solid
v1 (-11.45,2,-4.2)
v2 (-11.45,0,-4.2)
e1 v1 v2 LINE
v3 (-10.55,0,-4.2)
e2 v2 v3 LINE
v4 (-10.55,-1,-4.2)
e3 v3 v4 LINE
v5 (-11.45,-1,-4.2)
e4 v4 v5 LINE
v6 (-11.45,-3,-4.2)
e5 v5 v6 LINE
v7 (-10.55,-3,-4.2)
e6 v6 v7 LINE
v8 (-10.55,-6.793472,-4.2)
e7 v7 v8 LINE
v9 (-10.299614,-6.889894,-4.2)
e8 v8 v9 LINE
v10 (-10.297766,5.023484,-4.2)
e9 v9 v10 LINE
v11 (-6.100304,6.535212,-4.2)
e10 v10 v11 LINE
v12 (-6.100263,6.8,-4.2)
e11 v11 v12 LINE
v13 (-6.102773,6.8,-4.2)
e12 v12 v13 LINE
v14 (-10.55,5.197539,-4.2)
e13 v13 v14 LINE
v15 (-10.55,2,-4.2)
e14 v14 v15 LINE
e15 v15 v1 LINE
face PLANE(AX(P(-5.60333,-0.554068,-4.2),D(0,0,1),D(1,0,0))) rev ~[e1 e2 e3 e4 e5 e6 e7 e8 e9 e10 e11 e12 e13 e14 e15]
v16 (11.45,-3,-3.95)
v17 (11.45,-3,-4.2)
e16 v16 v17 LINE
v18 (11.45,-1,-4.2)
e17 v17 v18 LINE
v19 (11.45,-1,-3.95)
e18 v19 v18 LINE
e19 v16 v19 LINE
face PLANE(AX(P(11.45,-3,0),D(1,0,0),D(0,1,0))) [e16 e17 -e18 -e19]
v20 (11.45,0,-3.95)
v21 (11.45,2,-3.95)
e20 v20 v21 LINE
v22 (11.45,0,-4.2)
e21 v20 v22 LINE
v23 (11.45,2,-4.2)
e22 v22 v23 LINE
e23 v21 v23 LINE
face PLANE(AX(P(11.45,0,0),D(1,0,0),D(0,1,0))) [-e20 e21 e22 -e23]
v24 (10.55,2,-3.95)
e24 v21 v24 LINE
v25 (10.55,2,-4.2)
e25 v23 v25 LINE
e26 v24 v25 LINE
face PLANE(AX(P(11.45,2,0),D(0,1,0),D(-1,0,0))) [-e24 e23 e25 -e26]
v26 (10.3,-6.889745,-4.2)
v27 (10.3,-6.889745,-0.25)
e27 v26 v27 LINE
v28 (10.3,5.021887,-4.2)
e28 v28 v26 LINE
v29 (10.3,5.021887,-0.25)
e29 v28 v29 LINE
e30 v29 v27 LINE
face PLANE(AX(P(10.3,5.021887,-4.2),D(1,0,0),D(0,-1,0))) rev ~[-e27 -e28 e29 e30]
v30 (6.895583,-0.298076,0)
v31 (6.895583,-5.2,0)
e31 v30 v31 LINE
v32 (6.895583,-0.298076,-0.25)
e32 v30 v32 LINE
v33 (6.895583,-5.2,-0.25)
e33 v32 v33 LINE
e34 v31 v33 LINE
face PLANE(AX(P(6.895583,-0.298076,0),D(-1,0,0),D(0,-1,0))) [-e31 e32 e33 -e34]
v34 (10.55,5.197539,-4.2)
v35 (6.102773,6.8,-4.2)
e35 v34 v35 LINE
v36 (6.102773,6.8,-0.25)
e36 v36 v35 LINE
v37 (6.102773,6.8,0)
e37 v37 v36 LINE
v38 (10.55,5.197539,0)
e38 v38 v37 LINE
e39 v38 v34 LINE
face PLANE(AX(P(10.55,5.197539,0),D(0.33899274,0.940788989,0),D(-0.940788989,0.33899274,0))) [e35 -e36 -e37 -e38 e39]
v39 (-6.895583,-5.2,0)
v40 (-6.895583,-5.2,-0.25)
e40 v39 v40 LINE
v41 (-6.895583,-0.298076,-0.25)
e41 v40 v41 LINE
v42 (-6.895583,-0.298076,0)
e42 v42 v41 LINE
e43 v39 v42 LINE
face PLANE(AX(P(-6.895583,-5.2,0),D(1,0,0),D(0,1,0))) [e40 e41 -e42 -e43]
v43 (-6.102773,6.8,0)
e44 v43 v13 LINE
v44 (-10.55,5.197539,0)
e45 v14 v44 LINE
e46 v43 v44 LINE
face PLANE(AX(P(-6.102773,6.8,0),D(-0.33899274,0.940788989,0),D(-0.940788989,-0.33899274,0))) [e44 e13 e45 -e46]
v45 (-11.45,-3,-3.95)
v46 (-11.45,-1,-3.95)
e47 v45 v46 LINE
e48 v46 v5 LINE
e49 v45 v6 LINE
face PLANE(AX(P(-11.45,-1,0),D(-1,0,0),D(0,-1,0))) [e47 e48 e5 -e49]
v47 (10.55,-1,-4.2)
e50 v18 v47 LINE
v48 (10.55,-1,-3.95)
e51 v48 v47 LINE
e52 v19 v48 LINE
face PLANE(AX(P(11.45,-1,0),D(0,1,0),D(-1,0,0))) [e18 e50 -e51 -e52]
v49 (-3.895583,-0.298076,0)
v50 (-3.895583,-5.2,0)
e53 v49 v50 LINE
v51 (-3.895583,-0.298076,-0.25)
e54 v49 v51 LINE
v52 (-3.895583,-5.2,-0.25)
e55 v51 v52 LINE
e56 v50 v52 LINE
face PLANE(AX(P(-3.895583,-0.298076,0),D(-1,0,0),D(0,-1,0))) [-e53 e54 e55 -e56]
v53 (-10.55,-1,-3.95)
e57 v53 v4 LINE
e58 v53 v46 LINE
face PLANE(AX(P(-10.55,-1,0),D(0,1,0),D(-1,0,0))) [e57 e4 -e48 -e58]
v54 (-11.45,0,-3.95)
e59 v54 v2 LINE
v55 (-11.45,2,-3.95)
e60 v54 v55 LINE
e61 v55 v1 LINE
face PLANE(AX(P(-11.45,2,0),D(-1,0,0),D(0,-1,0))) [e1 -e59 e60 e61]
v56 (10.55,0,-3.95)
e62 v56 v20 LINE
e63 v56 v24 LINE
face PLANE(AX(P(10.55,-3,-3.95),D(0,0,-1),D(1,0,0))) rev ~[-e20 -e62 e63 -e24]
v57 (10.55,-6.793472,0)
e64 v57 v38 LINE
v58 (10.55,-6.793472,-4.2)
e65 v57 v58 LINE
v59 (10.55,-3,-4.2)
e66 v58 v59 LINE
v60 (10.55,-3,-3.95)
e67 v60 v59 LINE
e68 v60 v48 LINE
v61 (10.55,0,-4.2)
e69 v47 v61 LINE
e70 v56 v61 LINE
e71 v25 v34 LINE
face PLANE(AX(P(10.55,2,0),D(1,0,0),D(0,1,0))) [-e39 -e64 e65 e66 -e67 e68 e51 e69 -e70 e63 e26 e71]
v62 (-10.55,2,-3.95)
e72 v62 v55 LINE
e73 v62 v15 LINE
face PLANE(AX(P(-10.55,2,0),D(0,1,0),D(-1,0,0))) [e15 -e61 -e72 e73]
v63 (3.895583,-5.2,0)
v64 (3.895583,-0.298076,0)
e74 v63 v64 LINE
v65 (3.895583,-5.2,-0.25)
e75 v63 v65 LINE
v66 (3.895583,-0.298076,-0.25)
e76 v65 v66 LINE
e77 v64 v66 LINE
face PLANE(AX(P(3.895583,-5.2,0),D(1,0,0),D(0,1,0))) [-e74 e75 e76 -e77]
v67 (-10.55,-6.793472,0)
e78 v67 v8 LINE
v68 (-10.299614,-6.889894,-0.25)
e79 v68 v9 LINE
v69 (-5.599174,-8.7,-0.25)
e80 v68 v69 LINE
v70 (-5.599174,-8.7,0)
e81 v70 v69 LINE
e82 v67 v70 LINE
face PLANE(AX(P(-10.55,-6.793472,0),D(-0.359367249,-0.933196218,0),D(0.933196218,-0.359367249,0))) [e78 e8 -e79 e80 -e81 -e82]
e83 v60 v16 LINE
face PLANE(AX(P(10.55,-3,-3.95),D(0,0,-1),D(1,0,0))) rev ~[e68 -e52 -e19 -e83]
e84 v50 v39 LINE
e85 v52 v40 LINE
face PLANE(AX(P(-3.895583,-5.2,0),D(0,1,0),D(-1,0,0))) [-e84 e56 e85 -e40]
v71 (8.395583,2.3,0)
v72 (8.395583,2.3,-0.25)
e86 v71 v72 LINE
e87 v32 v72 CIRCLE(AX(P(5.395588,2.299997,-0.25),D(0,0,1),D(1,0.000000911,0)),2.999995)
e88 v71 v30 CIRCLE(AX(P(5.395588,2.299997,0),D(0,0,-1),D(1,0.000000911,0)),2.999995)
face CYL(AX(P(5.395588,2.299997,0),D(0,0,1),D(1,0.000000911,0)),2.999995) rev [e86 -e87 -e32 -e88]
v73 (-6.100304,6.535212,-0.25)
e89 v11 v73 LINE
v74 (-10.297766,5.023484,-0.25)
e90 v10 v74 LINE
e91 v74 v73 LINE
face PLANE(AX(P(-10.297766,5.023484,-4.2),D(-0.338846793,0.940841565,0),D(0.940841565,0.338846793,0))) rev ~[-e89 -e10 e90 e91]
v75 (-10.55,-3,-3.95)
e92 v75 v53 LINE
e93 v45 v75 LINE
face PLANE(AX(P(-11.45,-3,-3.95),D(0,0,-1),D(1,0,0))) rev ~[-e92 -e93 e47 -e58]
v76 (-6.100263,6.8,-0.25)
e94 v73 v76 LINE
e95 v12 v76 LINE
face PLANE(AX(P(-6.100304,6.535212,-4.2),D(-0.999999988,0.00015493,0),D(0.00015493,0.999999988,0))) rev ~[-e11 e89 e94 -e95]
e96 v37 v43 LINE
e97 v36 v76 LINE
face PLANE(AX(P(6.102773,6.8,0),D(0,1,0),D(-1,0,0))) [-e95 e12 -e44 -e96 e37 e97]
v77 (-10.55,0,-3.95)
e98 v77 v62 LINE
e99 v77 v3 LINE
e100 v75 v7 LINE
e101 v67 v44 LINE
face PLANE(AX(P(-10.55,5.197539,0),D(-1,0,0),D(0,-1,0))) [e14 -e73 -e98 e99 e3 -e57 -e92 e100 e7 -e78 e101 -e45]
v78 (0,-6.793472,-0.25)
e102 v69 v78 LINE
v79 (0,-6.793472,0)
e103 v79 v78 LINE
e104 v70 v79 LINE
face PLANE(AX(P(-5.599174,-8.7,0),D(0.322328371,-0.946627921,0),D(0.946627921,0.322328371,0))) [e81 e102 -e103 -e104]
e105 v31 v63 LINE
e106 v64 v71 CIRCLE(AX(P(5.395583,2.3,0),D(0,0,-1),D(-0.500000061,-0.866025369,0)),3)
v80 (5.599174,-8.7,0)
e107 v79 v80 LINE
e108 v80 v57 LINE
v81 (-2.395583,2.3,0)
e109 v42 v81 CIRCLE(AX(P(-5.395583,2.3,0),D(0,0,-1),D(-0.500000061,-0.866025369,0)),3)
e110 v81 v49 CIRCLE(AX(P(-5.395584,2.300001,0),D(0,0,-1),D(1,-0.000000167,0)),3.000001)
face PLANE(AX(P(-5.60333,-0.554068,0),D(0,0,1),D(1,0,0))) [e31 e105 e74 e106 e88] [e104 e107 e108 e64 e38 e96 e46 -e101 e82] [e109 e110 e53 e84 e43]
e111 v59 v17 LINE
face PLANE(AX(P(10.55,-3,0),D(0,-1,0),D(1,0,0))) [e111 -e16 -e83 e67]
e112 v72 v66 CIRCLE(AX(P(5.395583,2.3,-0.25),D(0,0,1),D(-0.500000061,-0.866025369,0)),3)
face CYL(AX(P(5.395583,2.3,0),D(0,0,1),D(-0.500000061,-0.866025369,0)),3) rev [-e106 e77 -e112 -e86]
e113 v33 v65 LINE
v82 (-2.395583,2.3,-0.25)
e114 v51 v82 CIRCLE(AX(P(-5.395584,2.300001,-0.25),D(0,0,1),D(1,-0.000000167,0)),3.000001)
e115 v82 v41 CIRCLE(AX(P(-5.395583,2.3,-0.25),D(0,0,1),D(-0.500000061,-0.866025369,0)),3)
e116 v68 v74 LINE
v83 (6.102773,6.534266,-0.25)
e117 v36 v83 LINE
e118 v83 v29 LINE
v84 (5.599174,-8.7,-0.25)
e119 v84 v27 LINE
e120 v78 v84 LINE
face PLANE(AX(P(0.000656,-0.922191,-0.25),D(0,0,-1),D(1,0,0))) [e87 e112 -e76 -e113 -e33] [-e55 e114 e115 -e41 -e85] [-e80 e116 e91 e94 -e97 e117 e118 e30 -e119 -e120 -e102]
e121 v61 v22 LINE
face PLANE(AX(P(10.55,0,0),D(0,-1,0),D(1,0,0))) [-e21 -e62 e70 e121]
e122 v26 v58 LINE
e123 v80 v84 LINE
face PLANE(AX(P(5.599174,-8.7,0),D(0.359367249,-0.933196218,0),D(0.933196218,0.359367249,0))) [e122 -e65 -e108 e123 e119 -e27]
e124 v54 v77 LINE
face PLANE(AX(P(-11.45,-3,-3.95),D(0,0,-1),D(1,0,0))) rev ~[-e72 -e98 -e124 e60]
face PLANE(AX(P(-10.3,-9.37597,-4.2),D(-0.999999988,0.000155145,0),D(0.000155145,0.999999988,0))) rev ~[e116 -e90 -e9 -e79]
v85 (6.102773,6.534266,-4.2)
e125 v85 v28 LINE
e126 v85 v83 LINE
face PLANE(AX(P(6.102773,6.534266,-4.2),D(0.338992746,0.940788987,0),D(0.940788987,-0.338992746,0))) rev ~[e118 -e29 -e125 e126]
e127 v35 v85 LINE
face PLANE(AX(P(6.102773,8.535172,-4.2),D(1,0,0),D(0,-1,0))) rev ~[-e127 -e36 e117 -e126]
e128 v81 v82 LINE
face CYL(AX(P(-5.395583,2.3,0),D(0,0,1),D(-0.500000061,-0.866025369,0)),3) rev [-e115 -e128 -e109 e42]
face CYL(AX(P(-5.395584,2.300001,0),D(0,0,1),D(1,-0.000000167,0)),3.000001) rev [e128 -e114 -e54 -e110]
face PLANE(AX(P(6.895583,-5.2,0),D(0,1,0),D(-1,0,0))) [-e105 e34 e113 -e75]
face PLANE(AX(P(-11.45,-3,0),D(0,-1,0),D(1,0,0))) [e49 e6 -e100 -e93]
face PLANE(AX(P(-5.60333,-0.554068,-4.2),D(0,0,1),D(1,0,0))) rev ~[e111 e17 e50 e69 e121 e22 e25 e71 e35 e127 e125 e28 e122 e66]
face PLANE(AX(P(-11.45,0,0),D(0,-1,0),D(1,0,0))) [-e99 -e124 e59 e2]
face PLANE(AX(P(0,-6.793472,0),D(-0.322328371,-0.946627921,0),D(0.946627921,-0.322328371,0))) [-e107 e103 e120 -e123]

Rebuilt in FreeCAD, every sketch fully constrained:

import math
import FreeCAD as App
import Part
import Sketcher
from FreeCAD import Vector


def add_polygon(sketch, points):
    """Adds a closed chain of lines whose ends are joined by coincident constraints."""
    first, n = sketch.GeometryCount, len(points)
    for a, b in zip(points, points[1:] + points[:1]):
        sketch.addGeometry(Part.LineSegment(App.Vector(*a, 0), App.Vector(*b, 0)), False)
    for i in range(n):
        sketch.addConstraint(Sketcher.Constraint("Coincident", first + i, 2, first + (i + 1) % n, 1))

doc = App.newDocument("Part")
body = doc.addObject("PartDesign::Body", "Body")

# Sketch on XY plane
sketch1 = body.newObject("Sketcher::SketchObject", "Sketch")
sketch1.AttachmentSupport = (doc.getObject("XY_Plane"), [""])
sketch1.MapMode = "FlatFace"
add_polygon(sketch1, [(-6.1, 6.8), (-10.6, 5.2), (-10.6, 2), (-11.4, 2), (-11.4, 0), (-10.6, 0), (-10.6, -1), (-11.4, -1), (-11.4, -3), (-10.6, -3), (-10.6, -6.8), (-5.6, -8.7), (0, -6.8), (5.6, -8.7), (10.6, -6.8), (10.6, -3), (11.4, -3), (11.4, -1), (10.6, -1), (10.6, 0), (11.4, 0), (11.4, 2), (10.6, 2), (10.6, 5.2), (6.1, 6.8)])  # lines 0-24
sketch1.addGeometry(Part.LineSegment(Vector(-6.9, -5.2, 0), Vector(-6.9, -0.3, 0)), False)  # 25
sketch1.addGeometry(Part.ArcOfCircle(Part.Circle(Vector(-5.4, 2.3, 0), Vector(0, 0, 1), 3), math.radians(0), math.radians(240)), False)  # 26
sketch1.addGeometry(Part.ArcOfCircle(Part.Circle(Vector(-5.4, 2.3, 0), Vector(0, 0, 1), 3), math.radians(-60), math.radians(0)), False)  # 27
sketch1.addGeometry(Part.LineSegment(Vector(-3.9, -0.3, 0), Vector(-3.9, -5.2, 0)), False)  # 28
sketch1.addGeometry(Part.LineSegment(Vector(-3.9, -5.2, 0), Vector(-6.9, -5.2, 0)), False)  # 29
sketch1.addGeometry(Part.LineSegment(Vector(3.9, -5.2, 0), Vector(3.9, -0.3, 0)), False)  # 30
sketch1.addGeometry(Part.ArcOfCircle(Part.Circle(Vector(5.4, 2.3, 0), Vector(0, 0, 1), 3), math.radians(0), math.radians(240)), False)  # 31
sketch1.addGeometry(Part.ArcOfCircle(Part.Circle(Vector(5.4, 2.3, 0), Vector(0, 0, 1), 3), math.radians(-60), math.radians(0)), False)  # 32
sketch1.addGeometry(Part.LineSegment(Vector(6.9, -0.3, 0), Vector(6.9, -5.2, 0)), False)  # 33
sketch1.addGeometry(Part.LineSegment(Vector(6.9, -5.2, 0), Vector(3.9, -5.2, 0)), False)  # 34
sketch1.addConstraint([
    Sketcher.Constraint("Coincident", 25, 2, 26, 2),
    Sketcher.Constraint("Tangent", 26, 1, 27, 2),
    Sketcher.Constraint("Coincident", 27, 1, 28, 1),
    Sketcher.Constraint("Coincident", 28, 2, 29, 1),
    Sketcher.Constraint("Coincident", 29, 2, 25, 1),
    Sketcher.Constraint("Coincident", 30, 2, 31, 2),
    Sketcher.Constraint("Tangent", 31, 1, 32, 2),
    Sketcher.Constraint("Coincident", 32, 1, 33, 1),
    Sketcher.Constraint("Coincident", 33, 2, 34, 1),
    Sketcher.Constraint("Coincident", 34, 2, 30, 1),
    Sketcher.Constraint("Vertical", 1),
    Sketcher.Constraint("Horizontal", 2),
    Sketcher.Constraint("Vertical", 3),
    Sketcher.Constraint("Horizontal", 4),
    Sketcher.Constraint("Vertical", 5),
    Sketcher.Constraint("Horizontal", 6),
    Sketcher.Constraint("Vertical", 7),
    Sketcher.Constraint("Horizontal", 8),
    Sketcher.Constraint("Vertical", 9),
    Sketcher.Constraint("Vertical", 14),
    Sketcher.Constraint("Horizontal", 15),
    Sketcher.Constraint("Vertical", 16),
    Sketcher.Constraint("Horizontal", 17),
    Sketcher.Constraint("Vertical", 18),
    Sketcher.Constraint("Horizontal", 19),
    Sketcher.Constraint("Vertical", 20),
    Sketcher.Constraint("Horizontal", 21),
    Sketcher.Constraint("Vertical", 22),
    Sketcher.Constraint("Horizontal", 24),
    Sketcher.Constraint("Vertical", 25),
    Sketcher.Constraint("Vertical", 28),
    Sketcher.Constraint("Horizontal", 29),
    Sketcher.Constraint("Vertical", 30),
    Sketcher.Constraint("Vertical", 33),
    Sketcher.Constraint("Horizontal", 34),
    Sketcher.Constraint("Equal", 26, 27),
    Sketcher.Constraint("Equal", 27, 31),
    Sketcher.Constraint("Symmetric", 4, 2, 18, 2, -1, 1),
    Sketcher.Constraint("Symmetric", 26, 3, 31, 3, -2),
    Sketcher.Constraint("Symmetric", 10, 2, 12, 2, -2),
    Sketcher.Constraint("Symmetric", 9, 2, 13, 2, -2),
    Sketcher.Constraint("Symmetric", 7, 2, 15, 2, -2),
    Sketcher.Constraint("Symmetric", 3, 2, 19, 2, -2),
    Sketcher.Constraint("Symmetric", 1, 2, 21, 2, -2),
    Sketcher.Constraint("Symmetric", 25, 2, 32, 1, -2),
    Sketcher.Constraint("Symmetric", 28, 2, 34, 2, -2),
    Sketcher.Constraint("PointOnObject", 11, 2, -2),
    Sketcher.Constraint("Horizontal", 9, 2, 11, 2),
    Sketcher.Constraint("Horizontal", 6, 2, 16, 2),
    Sketcher.Constraint("Horizontal", 0, 2, 22, 2),
    Sketcher.Constraint("Horizontal", 31, 3, 26, 1),
    Sketcher.Constraint("Horizontal", 25, 2, 27, 1),
    Sketcher.Constraint("Horizontal", 26, 1, 31, 1),
    Sketcher.Constraint("Vertical", 1, 2, 4, 2),
    Sketcher.Constraint("Vertical", 3, 2, 6, 2),
    Sketcher.Constraint("Vertical", 5, 2, 8, 2),
    Sketcher.Constraint("Equal", 3, 7),
    Sketcher.Constraint("Equal", 0, 23),
    Sketcher.Constraint("Radius", 26, 3.0),
    Sketcher.Constraint("DistanceX", 29, 2, 29, 1, 3.0),
    Sketcher.Constraint("DistanceY", 3, 2, 3, 1, 2.0),
    Sketcher.Constraint("DistanceY", 5, 2, 5, 1, 1.0),
    Sketcher.Constraint("DistanceX", 2, 2, 2, 1, 0.9),
    Sketcher.Constraint("DistanceY", 12, 2, 31, 3, 11.0),
    Sketcher.Constraint("DistanceY", -1, 1, 26, 3, 2.3),
    Sketcher.Constraint("DistanceY", -1, 1, 23, 2, 6.8),
    Sketcher.Constraint("DistanceY", 28, 2, -1, 1, 5.2),
    Sketcher.Constraint("DistanceX", 0, 2, -1, 1, 10.55),
    Sketcher.Constraint("DistanceY", 1, 2, 1, 1, 3.197539),
    Sketcher.Constraint("DistanceX", 24, 2, 24, 1, 12.205546),
    Sketcher.Constraint("DistanceY", 9, 2, 9, 1, 3.793472),
    Sketcher.Constraint("DistanceX", -1, 1, 32, 3, 5.395588),
    Sketcher.Constraint("DistanceX", 31, 3, 12, 2, 0.203591),
])
pad1 = body.newObject("PartDesign::Pad", "Pad")
pad1.Profile = sketch1
pad1.Length = 4.2
pad1.Reversed = True

# Sketch on XY plane
sketch2 = body.newObject("Sketcher::SketchObject", "Sketch001")
sketch2.AttachmentSupport = (doc.getObject("XY_Plane"), [""])
sketch2.MapMode = "FlatFace"
sketch2.AttachmentOffset = App.Placement(Vector(0, 0, -4.2), App.Rotation())
add_polygon(sketch2, [(10.3, 5.021887), (10.3, -9.377568), (0, -9.377568), (-10.3, -9.37597), (-10.297766, 5.023484), (-6.100304, 6.535212), (-6.099994, 8.536118), (0.001405, 8.73276), (6.102773, 8.535172), (6.102773, 6.534266)])  # lines 0-9
sketch2.addConstraint([
    Sketcher.Constraint("Vertical", 0),
    Sketcher.Constraint("Horizontal", 1),
    Sketcher.Constraint("Vertical", 8),
    Sketcher.Constraint("PointOnObject", 1, 2, -2),
    Sketcher.Constraint("DistanceX", 1, 2, 1, 1, 10.3),
    Sketcher.Constraint("Distance", 2, 10.3),
    Sketcher.Constraint("DistanceX", 5, 2, 6, 2, 6.101399),
    Sketcher.Constraint("Distance", 4, 4.461391),
    Sketcher.Constraint("Distance", 9, 4.46139),
    Sketcher.Constraint("DistanceY", 0, 2, 0, 1, 14.399455),
    Sketcher.Constraint("DistanceY", 8, 2, 8, 1, 2.000906),
    Sketcher.Constraint("DistanceY", 2, 2, -1, 1, 9.37597),
    Sketcher.Constraint("DistanceY", -1, 1, 4, 2, 6.535212),
    Sketcher.Constraint("DistanceY", -1, 1, 6, 2, 8.73276),
    Sketcher.Constraint("DistanceY", -1, 1, 7, 2, 8.535172),
    Sketcher.Constraint("DistanceX", 3, 2, 4, 2, 4.197462),
    Sketcher.Constraint("DistanceY", 1, 2, 4, 2, 15.91278),
    Sketcher.Constraint("DistanceX", 4, 2, 5, 2, 0.00031),
    Sketcher.Constraint("DistanceY", 2, 2, 5, 2, 17.912088),
    Sketcher.Constraint("DistanceX", 3, 2, 7, 2, 16.400539),
])
pocket1 = body.newObject("PartDesign::Pocket", "Pocket")
pocket1.Profile = sketch2
pocket1.Length = 3.95
pocket1.Reversed = True

# Sketch on XZ plane
sketch3 = body.newObject("Sketcher::SketchObject", "Sketch002")
sketch3.AttachmentSupport = (doc.getObject("XZ_Plane"), [""])
sketch3.MapMode = "FlatFace"
sketch3.AttachmentOffset = App.Placement(Vector(0, 0, 3), App.Rotation())
add_polygon(sketch3, [(-11.4, 0), (-11.4, -4), (-10.6, -4), (-10.6, 0)])  # lines 0-3
add_polygon(sketch3, [(10.6, 0), (10.6, -4), (11.4, -4), (11.4, 0)])  # lines 4-7
sketch3.addConstraint([
    Sketcher.Constraint("Vertical", 0),
    Sketcher.Constraint("Horizontal", 1),
    Sketcher.Constraint("Vertical", 2),
    Sketcher.Constraint("Horizontal", 3),
    Sketcher.Constraint("Vertical", 4),
    Sketcher.Constraint("Horizontal", 5),
    Sketcher.Constraint("Vertical", 6),
    Sketcher.Constraint("Horizontal", 7),
    Sketcher.Constraint("Symmetric", 3, 2, 6, 2, -1, 1),
    Sketcher.Constraint("Symmetric", 1, 2, 4, 2, -2),
    Sketcher.Constraint("PointOnObject", 2, 2, -1),
    Sketcher.Constraint("DistanceX", 1, 1, 1, 2, 0.9),
    Sketcher.Constraint("DistanceX", 0, 2, 4, 2, 22.0),
    Sketcher.Constraint("DistanceY", 0, 2, 0, 1, 3.95),
])
pocket2 = body.newObject("PartDesign::Pocket", "Pocket001")
pocket2.Profile = sketch3
pocket2.Type = "ThroughAll"

doc.recompute()
